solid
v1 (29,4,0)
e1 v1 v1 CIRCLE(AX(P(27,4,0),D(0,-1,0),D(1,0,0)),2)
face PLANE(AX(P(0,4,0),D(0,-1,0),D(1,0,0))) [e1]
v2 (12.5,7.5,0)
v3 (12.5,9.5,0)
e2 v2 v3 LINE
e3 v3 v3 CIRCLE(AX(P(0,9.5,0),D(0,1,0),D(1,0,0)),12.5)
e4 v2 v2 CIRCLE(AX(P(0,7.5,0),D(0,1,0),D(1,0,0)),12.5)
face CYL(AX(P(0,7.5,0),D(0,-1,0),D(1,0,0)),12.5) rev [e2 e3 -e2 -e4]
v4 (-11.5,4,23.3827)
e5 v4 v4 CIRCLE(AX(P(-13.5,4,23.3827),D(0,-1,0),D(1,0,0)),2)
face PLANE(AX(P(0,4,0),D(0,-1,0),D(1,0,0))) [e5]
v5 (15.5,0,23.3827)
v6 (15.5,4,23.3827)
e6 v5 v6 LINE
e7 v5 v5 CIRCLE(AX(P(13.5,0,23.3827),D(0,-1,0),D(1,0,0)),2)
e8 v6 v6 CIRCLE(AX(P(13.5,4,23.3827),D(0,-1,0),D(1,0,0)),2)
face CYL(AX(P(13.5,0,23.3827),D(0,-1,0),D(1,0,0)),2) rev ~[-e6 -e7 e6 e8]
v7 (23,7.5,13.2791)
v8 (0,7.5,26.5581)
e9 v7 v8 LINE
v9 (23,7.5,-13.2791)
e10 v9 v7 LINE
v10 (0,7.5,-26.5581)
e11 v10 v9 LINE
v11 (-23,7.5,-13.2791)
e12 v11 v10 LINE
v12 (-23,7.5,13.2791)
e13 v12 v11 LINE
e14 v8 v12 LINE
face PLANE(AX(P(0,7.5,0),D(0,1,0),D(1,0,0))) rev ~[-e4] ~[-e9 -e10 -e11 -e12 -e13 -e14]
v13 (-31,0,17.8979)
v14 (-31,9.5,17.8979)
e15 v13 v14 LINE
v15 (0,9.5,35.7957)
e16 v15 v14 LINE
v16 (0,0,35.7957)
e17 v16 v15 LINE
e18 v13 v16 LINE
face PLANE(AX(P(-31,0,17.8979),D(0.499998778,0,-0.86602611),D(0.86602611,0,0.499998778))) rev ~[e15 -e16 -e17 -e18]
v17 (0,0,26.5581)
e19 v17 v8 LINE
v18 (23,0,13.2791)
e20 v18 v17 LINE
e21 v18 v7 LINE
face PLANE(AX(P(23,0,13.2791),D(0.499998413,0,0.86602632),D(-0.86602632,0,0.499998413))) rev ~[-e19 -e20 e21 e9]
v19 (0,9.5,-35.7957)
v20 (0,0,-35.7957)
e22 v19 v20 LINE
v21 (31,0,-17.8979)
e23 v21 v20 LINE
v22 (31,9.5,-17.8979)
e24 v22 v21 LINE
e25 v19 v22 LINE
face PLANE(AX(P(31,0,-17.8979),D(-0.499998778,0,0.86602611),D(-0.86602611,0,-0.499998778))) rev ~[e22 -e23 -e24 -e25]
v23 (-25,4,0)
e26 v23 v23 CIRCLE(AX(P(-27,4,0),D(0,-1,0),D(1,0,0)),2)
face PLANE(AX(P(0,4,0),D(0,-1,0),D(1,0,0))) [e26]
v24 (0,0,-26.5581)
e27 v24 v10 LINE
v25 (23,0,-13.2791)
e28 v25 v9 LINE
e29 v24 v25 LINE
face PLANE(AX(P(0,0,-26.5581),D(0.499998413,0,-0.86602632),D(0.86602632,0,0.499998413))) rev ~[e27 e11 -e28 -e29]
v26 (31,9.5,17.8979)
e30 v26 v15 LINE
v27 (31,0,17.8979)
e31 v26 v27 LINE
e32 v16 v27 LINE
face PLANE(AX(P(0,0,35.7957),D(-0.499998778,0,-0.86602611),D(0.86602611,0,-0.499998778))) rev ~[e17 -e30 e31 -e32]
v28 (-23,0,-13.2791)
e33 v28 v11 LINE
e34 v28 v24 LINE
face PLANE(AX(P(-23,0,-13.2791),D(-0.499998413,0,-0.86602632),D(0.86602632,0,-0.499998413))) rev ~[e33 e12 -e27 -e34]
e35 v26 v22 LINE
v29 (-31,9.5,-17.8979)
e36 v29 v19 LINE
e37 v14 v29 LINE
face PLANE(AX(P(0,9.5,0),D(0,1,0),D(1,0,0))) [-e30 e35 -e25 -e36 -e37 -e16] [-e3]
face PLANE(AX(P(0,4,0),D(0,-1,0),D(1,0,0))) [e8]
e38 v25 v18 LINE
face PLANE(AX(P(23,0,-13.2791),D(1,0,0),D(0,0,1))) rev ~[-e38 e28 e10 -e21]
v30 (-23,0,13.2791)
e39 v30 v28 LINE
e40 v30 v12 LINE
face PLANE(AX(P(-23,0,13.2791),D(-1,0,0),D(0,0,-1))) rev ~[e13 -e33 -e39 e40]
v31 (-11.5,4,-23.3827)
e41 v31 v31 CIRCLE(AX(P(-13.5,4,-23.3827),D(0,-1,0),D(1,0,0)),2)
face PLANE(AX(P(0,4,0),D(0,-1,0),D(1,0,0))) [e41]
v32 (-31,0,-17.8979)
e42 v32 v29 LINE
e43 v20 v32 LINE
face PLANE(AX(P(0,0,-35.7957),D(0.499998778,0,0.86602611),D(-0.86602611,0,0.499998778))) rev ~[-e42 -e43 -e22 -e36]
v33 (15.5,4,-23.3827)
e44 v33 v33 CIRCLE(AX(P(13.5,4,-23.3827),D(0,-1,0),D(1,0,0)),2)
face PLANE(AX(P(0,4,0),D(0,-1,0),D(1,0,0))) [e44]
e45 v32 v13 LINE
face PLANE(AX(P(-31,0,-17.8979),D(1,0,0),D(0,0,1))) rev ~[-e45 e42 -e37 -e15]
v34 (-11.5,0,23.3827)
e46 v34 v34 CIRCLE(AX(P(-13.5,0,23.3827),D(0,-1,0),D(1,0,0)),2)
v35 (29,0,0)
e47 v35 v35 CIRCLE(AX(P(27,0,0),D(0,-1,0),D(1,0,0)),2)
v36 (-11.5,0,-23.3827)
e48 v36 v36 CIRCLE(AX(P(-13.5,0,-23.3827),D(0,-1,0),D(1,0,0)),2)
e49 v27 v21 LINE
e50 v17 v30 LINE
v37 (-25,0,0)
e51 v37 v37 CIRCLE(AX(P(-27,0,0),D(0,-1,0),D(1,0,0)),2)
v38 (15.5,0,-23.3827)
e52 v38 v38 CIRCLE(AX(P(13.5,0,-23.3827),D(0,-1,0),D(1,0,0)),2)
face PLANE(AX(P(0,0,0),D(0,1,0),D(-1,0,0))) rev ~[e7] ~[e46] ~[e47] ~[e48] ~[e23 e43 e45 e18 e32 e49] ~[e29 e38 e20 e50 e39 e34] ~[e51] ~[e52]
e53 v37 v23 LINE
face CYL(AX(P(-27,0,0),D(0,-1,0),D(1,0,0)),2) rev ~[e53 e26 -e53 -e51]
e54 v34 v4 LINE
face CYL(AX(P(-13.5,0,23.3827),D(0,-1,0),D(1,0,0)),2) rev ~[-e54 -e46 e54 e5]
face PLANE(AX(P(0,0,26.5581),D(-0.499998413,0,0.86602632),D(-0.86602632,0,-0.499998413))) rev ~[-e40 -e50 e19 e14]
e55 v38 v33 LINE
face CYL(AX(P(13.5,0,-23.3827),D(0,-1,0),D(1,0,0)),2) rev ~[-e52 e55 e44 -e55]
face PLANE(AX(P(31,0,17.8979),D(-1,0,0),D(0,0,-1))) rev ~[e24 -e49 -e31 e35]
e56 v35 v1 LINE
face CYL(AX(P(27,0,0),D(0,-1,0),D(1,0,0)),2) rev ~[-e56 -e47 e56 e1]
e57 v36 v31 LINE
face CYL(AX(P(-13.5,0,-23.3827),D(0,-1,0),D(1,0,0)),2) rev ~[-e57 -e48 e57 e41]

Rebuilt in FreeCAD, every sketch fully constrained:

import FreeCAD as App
import Part
import Sketcher
Q = App.Units.Quantity

doc = App.newDocument("Part")
body = doc.addObject("PartDesign::Body", "Body")

# Sketch on XZ plane
sketch1 = body.newObject("Sketcher::SketchObject", "Sketch")
sketch1.AttachmentSupport = (doc.getObject("XZ_Plane"), [""])
sketch1.MapMode = "FlatFace"
sketch1.addGeometry([
    Part.LineSegment(App.Vector(0, -36, 0), App.Vector(-31, -18, 0)),  # 0
    Part.LineSegment(App.Vector(-31, -18, 0), App.Vector(-31, 18, 0)),  # 1
    Part.LineSegment(App.Vector(-31, 18, 0), App.Vector(0, 36, 0)),  # 2
    Part.LineSegment(App.Vector(0, 36, 0), App.Vector(31, 18, 0)),  # 3
    Part.LineSegment(App.Vector(31, 18, 0), App.Vector(31, -18, 0)),  # 4
    Part.LineSegment(App.Vector(31, -18, 0), App.Vector(0, -36, 0)),  # 5
    Part.LineSegment(App.Vector(23, -13, 0), App.Vector(23, 13, 0)),  # 6
    Part.LineSegment(App.Vector(23, 13, 0), App.Vector(0, 27, 0)),  # 7
    Part.LineSegment(App.Vector(0, 27, 0), App.Vector(-23, 13, 0)),  # 8
    Part.LineSegment(App.Vector(-23, 13, 0), App.Vector(-23, -13, 0)),  # 9
    Part.LineSegment(App.Vector(-23, -13, 0), App.Vector(0, -27, 0)),  # 10
    Part.LineSegment(App.Vector(0, -27, 0), App.Vector(23, -13, 0)),  # 11
], False)
sketch1.addConstraint([
    Sketcher.Constraint("Coincident", 0, 2, 1, 1),
    Sketcher.Constraint("Coincident", 1, 2, 2, 1),
    Sketcher.Constraint("Coincident", 2, 2, 3, 1),
    Sketcher.Constraint("Coincident", 3, 2, 4, 1),
    Sketcher.Constraint("Coincident", 4, 2, 5, 1),
    Sketcher.Constraint("Coincident", 5, 2, 0, 1),
    Sketcher.Constraint("Coincident", 6, 2, 7, 1),
    Sketcher.Constraint("Coincident", 7, 2, 8, 1),
    Sketcher.Constraint("Coincident", 8, 2, 9, 1),
    Sketcher.Constraint("Coincident", 9, 2, 10, 1),
    Sketcher.Constraint("Coincident", 10, 2, 11, 1),
    Sketcher.Constraint("Coincident", 11, 2, 6, 1),
    Sketcher.Constraint("Vertical", 1),
    Sketcher.Constraint("Vertical", 4),
    Sketcher.Constraint("Vertical", 6),
    Sketcher.Constraint("Vertical", 9),
    Sketcher.Constraint("Symmetric", 0, 2, 3, 2, -1, 1),
    Sketcher.Constraint("Symmetric", 2, 2, 5, 2, -1, 1),
    Sketcher.Constraint("Symmetric", 6, 2, 9, 2, -1, 1),
    Sketcher.Constraint("Symmetric", 7, 2, 10, 2, -1, 1),
    Sketcher.Constraint("PointOnObject", 2, 2, -2),
    Sketcher.Constraint("PointOnObject", 7, 2, -2),
    Sketcher.Constraint("Parallel", 2, 5),
    Sketcher.Constraint("Parallel", 3, 7),
    Sketcher.Constraint("Parallel", 5, 8),
    Sketcher.Constraint("Parallel", 8, 11),
    Sketcher.Constraint("Horizontal", 1, 2, 3, 2),
    Sketcher.Constraint("DistanceX", 6, 2, 3, 2, Q("8 mm")),
    Sketcher.Constraint("DistanceX", 8, 2, 6, 2, Q("46 mm")),
    Sketcher.Constraint("Angle", 0, Q("150 deg")),
    Sketcher.Constraint("DistanceY", 1, 1, 1, 2, Q("35.7958 mm")),
    Sketcher.Constraint("DistanceY", 6, 1, 6, 2, Q("26.5582 mm")),
])
pad1 = body.newObject("PartDesign::Pad", "Pad")
pad1.Profile = sketch1
pad1.Length = 7.5
pad1.Reversed = True

# Sketch on XZ plane
sketch2 = body.newObject("Sketcher::SketchObject", "Sketch001")
sketch2.AttachmentSupport = (doc.getObject("XZ_Plane"), [""])
sketch2.MapMode = "FlatFace"
sketch2.AttachmentOffset = App.Placement(App.Vector(0, 0, -7.5), App.Rotation())
sketch2.addGeometry([
    Part.LineSegment(App.Vector(0, 36, 0), App.Vector(31, 18, 0)),  # 0
    Part.LineSegment(App.Vector(31, 18, 0), App.Vector(31, -18, 0)),  # 1
    Part.LineSegment(App.Vector(31, -18, 0), App.Vector(0, -36, 0)),  # 2
    Part.LineSegment(App.Vector(0, -36, 0), App.Vector(-31, -18, 0)),  # 3
    Part.LineSegment(App.Vector(-31, -18, 0), App.Vector(-31, 18, 0)),  # 4
    Part.LineSegment(App.Vector(-31, 18, 0), App.Vector(0, 36, 0)),  # 5
    Part.Circle(App.Vector(0, 0, 0), App.Vector(0, 0, 1), 12),  # 6
], False)
sketch2.addConstraint([
    Sketcher.Constraint("Coincident", 0, 2, 1, 1),
    Sketcher.Constraint("Coincident", 1, 2, 2, 1),
    Sketcher.Constraint("Coincident", 2, 2, 3, 1),
    Sketcher.Constraint("Coincident", 3, 2, 4, 1),
    Sketcher.Constraint("Coincident", 4, 2, 5, 1),
    Sketcher.Constraint("Coincident", 5, 2, 0, 1),
    Sketcher.Constraint("Vertical", 1),
    Sketcher.Constraint("Vertical", 4),
    Sketcher.Constraint("Coincident", 6, 3, -1, 1),
    Sketcher.Constraint("Symmetric", 0, 2, 3, 2, -1, 1),
    Sketcher.Constraint("Symmetric", 2, 2, 5, 2, -1, 1),
    Sketcher.Constraint("PointOnObject", 2, 2, -2),
    Sketcher.Constraint("Parallel", 2, 5),
    Sketcher.Constraint("Horizontal", 1, 2, 3, 2),
    Sketcher.Constraint("Diameter", 6, Q("25 mm")),
    Sketcher.Constraint("Angle", 0, Q("-30 deg")),
    Sketcher.Constraint("DistanceX", -1, 1, 0, 2, Q("31 mm")),
    Sketcher.Constraint("DistanceY", 1, 2, 1, 1, Q("35.7958 mm")),
])
pad2 = body.newObject("PartDesign::Pad", "Pad001")
pad2.Profile = sketch2
pad2.Length = 2
pad2.Reversed = True

# Sketch on XZ plane
sketch3 = body.newObject("Sketcher::SketchObject", "Sketch002")
sketch3.AttachmentSupport = (doc.getObject("XZ_Plane"), [""])
sketch3.MapMode = "FlatFace"
sketch3.addGeometry([
    Part.Circle(App.Vector(13.5, 23.4, 0), App.Vector(0, 0, 1), 2),  # 0
    Part.Circle(App.Vector(-13.5, 23.4, 0), App.Vector(0, 0, 1), 2),  # 1
    Part.Circle(App.Vector(-27, 0, 0), App.Vector(0, 0, 1), 2),  # 2
    Part.Circle(App.Vector(-13.5, -23.4, 0), App.Vector(0, 0, 1), 2),  # 3
    Part.Circle(App.Vector(13.5, -23.4, 0), App.Vector(0, 0, 1), 2),  # 4
    Part.Circle(App.Vector(27, 0, 0), App.Vector(0, 0, 1), 2),  # 5
], False)
sketch3.addConstraint([
    Sketcher.Constraint("Equal", 0, 1),
    Sketcher.Constraint("Equal", 1, 2),
    Sketcher.Constraint("Equal", 2, 3),
    Sketcher.Constraint("Equal", 3, 4),
    Sketcher.Constraint("Equal", 4, 5),
    Sketcher.Constraint("Symmetric", 0, 3, 3, 3, -1, 1),
    Sketcher.Constraint("Symmetric", 1, 3, 4, 3, -1, 1),
    Sketcher.Constraint("Symmetric", 2, 3, 5, 3, -1, 1),
    Sketcher.Constraint("Symmetric", 0, 3, 1, 3, -2),
    Sketcher.Constraint("PointOnObject", 2, 3, -1),
    Sketcher.Constraint("Diameter", 0, Q("4 mm")),
    Sketcher.Constraint("DistanceX", 2, 3, -1, 1, Q("27 mm")),
    Sketcher.Constraint("DistanceX", 1, 3, 0, 3, Q("27 mm")),
    Sketcher.Constraint("DistanceY", -1, 1, 0, 3, Q("23.3827 mm")),
])
pocket1 = body.newObject("PartDesign::Pocket", "Pocket")
pocket1.Profile = sketch3
pocket1.Length = 4

doc.recompute()
